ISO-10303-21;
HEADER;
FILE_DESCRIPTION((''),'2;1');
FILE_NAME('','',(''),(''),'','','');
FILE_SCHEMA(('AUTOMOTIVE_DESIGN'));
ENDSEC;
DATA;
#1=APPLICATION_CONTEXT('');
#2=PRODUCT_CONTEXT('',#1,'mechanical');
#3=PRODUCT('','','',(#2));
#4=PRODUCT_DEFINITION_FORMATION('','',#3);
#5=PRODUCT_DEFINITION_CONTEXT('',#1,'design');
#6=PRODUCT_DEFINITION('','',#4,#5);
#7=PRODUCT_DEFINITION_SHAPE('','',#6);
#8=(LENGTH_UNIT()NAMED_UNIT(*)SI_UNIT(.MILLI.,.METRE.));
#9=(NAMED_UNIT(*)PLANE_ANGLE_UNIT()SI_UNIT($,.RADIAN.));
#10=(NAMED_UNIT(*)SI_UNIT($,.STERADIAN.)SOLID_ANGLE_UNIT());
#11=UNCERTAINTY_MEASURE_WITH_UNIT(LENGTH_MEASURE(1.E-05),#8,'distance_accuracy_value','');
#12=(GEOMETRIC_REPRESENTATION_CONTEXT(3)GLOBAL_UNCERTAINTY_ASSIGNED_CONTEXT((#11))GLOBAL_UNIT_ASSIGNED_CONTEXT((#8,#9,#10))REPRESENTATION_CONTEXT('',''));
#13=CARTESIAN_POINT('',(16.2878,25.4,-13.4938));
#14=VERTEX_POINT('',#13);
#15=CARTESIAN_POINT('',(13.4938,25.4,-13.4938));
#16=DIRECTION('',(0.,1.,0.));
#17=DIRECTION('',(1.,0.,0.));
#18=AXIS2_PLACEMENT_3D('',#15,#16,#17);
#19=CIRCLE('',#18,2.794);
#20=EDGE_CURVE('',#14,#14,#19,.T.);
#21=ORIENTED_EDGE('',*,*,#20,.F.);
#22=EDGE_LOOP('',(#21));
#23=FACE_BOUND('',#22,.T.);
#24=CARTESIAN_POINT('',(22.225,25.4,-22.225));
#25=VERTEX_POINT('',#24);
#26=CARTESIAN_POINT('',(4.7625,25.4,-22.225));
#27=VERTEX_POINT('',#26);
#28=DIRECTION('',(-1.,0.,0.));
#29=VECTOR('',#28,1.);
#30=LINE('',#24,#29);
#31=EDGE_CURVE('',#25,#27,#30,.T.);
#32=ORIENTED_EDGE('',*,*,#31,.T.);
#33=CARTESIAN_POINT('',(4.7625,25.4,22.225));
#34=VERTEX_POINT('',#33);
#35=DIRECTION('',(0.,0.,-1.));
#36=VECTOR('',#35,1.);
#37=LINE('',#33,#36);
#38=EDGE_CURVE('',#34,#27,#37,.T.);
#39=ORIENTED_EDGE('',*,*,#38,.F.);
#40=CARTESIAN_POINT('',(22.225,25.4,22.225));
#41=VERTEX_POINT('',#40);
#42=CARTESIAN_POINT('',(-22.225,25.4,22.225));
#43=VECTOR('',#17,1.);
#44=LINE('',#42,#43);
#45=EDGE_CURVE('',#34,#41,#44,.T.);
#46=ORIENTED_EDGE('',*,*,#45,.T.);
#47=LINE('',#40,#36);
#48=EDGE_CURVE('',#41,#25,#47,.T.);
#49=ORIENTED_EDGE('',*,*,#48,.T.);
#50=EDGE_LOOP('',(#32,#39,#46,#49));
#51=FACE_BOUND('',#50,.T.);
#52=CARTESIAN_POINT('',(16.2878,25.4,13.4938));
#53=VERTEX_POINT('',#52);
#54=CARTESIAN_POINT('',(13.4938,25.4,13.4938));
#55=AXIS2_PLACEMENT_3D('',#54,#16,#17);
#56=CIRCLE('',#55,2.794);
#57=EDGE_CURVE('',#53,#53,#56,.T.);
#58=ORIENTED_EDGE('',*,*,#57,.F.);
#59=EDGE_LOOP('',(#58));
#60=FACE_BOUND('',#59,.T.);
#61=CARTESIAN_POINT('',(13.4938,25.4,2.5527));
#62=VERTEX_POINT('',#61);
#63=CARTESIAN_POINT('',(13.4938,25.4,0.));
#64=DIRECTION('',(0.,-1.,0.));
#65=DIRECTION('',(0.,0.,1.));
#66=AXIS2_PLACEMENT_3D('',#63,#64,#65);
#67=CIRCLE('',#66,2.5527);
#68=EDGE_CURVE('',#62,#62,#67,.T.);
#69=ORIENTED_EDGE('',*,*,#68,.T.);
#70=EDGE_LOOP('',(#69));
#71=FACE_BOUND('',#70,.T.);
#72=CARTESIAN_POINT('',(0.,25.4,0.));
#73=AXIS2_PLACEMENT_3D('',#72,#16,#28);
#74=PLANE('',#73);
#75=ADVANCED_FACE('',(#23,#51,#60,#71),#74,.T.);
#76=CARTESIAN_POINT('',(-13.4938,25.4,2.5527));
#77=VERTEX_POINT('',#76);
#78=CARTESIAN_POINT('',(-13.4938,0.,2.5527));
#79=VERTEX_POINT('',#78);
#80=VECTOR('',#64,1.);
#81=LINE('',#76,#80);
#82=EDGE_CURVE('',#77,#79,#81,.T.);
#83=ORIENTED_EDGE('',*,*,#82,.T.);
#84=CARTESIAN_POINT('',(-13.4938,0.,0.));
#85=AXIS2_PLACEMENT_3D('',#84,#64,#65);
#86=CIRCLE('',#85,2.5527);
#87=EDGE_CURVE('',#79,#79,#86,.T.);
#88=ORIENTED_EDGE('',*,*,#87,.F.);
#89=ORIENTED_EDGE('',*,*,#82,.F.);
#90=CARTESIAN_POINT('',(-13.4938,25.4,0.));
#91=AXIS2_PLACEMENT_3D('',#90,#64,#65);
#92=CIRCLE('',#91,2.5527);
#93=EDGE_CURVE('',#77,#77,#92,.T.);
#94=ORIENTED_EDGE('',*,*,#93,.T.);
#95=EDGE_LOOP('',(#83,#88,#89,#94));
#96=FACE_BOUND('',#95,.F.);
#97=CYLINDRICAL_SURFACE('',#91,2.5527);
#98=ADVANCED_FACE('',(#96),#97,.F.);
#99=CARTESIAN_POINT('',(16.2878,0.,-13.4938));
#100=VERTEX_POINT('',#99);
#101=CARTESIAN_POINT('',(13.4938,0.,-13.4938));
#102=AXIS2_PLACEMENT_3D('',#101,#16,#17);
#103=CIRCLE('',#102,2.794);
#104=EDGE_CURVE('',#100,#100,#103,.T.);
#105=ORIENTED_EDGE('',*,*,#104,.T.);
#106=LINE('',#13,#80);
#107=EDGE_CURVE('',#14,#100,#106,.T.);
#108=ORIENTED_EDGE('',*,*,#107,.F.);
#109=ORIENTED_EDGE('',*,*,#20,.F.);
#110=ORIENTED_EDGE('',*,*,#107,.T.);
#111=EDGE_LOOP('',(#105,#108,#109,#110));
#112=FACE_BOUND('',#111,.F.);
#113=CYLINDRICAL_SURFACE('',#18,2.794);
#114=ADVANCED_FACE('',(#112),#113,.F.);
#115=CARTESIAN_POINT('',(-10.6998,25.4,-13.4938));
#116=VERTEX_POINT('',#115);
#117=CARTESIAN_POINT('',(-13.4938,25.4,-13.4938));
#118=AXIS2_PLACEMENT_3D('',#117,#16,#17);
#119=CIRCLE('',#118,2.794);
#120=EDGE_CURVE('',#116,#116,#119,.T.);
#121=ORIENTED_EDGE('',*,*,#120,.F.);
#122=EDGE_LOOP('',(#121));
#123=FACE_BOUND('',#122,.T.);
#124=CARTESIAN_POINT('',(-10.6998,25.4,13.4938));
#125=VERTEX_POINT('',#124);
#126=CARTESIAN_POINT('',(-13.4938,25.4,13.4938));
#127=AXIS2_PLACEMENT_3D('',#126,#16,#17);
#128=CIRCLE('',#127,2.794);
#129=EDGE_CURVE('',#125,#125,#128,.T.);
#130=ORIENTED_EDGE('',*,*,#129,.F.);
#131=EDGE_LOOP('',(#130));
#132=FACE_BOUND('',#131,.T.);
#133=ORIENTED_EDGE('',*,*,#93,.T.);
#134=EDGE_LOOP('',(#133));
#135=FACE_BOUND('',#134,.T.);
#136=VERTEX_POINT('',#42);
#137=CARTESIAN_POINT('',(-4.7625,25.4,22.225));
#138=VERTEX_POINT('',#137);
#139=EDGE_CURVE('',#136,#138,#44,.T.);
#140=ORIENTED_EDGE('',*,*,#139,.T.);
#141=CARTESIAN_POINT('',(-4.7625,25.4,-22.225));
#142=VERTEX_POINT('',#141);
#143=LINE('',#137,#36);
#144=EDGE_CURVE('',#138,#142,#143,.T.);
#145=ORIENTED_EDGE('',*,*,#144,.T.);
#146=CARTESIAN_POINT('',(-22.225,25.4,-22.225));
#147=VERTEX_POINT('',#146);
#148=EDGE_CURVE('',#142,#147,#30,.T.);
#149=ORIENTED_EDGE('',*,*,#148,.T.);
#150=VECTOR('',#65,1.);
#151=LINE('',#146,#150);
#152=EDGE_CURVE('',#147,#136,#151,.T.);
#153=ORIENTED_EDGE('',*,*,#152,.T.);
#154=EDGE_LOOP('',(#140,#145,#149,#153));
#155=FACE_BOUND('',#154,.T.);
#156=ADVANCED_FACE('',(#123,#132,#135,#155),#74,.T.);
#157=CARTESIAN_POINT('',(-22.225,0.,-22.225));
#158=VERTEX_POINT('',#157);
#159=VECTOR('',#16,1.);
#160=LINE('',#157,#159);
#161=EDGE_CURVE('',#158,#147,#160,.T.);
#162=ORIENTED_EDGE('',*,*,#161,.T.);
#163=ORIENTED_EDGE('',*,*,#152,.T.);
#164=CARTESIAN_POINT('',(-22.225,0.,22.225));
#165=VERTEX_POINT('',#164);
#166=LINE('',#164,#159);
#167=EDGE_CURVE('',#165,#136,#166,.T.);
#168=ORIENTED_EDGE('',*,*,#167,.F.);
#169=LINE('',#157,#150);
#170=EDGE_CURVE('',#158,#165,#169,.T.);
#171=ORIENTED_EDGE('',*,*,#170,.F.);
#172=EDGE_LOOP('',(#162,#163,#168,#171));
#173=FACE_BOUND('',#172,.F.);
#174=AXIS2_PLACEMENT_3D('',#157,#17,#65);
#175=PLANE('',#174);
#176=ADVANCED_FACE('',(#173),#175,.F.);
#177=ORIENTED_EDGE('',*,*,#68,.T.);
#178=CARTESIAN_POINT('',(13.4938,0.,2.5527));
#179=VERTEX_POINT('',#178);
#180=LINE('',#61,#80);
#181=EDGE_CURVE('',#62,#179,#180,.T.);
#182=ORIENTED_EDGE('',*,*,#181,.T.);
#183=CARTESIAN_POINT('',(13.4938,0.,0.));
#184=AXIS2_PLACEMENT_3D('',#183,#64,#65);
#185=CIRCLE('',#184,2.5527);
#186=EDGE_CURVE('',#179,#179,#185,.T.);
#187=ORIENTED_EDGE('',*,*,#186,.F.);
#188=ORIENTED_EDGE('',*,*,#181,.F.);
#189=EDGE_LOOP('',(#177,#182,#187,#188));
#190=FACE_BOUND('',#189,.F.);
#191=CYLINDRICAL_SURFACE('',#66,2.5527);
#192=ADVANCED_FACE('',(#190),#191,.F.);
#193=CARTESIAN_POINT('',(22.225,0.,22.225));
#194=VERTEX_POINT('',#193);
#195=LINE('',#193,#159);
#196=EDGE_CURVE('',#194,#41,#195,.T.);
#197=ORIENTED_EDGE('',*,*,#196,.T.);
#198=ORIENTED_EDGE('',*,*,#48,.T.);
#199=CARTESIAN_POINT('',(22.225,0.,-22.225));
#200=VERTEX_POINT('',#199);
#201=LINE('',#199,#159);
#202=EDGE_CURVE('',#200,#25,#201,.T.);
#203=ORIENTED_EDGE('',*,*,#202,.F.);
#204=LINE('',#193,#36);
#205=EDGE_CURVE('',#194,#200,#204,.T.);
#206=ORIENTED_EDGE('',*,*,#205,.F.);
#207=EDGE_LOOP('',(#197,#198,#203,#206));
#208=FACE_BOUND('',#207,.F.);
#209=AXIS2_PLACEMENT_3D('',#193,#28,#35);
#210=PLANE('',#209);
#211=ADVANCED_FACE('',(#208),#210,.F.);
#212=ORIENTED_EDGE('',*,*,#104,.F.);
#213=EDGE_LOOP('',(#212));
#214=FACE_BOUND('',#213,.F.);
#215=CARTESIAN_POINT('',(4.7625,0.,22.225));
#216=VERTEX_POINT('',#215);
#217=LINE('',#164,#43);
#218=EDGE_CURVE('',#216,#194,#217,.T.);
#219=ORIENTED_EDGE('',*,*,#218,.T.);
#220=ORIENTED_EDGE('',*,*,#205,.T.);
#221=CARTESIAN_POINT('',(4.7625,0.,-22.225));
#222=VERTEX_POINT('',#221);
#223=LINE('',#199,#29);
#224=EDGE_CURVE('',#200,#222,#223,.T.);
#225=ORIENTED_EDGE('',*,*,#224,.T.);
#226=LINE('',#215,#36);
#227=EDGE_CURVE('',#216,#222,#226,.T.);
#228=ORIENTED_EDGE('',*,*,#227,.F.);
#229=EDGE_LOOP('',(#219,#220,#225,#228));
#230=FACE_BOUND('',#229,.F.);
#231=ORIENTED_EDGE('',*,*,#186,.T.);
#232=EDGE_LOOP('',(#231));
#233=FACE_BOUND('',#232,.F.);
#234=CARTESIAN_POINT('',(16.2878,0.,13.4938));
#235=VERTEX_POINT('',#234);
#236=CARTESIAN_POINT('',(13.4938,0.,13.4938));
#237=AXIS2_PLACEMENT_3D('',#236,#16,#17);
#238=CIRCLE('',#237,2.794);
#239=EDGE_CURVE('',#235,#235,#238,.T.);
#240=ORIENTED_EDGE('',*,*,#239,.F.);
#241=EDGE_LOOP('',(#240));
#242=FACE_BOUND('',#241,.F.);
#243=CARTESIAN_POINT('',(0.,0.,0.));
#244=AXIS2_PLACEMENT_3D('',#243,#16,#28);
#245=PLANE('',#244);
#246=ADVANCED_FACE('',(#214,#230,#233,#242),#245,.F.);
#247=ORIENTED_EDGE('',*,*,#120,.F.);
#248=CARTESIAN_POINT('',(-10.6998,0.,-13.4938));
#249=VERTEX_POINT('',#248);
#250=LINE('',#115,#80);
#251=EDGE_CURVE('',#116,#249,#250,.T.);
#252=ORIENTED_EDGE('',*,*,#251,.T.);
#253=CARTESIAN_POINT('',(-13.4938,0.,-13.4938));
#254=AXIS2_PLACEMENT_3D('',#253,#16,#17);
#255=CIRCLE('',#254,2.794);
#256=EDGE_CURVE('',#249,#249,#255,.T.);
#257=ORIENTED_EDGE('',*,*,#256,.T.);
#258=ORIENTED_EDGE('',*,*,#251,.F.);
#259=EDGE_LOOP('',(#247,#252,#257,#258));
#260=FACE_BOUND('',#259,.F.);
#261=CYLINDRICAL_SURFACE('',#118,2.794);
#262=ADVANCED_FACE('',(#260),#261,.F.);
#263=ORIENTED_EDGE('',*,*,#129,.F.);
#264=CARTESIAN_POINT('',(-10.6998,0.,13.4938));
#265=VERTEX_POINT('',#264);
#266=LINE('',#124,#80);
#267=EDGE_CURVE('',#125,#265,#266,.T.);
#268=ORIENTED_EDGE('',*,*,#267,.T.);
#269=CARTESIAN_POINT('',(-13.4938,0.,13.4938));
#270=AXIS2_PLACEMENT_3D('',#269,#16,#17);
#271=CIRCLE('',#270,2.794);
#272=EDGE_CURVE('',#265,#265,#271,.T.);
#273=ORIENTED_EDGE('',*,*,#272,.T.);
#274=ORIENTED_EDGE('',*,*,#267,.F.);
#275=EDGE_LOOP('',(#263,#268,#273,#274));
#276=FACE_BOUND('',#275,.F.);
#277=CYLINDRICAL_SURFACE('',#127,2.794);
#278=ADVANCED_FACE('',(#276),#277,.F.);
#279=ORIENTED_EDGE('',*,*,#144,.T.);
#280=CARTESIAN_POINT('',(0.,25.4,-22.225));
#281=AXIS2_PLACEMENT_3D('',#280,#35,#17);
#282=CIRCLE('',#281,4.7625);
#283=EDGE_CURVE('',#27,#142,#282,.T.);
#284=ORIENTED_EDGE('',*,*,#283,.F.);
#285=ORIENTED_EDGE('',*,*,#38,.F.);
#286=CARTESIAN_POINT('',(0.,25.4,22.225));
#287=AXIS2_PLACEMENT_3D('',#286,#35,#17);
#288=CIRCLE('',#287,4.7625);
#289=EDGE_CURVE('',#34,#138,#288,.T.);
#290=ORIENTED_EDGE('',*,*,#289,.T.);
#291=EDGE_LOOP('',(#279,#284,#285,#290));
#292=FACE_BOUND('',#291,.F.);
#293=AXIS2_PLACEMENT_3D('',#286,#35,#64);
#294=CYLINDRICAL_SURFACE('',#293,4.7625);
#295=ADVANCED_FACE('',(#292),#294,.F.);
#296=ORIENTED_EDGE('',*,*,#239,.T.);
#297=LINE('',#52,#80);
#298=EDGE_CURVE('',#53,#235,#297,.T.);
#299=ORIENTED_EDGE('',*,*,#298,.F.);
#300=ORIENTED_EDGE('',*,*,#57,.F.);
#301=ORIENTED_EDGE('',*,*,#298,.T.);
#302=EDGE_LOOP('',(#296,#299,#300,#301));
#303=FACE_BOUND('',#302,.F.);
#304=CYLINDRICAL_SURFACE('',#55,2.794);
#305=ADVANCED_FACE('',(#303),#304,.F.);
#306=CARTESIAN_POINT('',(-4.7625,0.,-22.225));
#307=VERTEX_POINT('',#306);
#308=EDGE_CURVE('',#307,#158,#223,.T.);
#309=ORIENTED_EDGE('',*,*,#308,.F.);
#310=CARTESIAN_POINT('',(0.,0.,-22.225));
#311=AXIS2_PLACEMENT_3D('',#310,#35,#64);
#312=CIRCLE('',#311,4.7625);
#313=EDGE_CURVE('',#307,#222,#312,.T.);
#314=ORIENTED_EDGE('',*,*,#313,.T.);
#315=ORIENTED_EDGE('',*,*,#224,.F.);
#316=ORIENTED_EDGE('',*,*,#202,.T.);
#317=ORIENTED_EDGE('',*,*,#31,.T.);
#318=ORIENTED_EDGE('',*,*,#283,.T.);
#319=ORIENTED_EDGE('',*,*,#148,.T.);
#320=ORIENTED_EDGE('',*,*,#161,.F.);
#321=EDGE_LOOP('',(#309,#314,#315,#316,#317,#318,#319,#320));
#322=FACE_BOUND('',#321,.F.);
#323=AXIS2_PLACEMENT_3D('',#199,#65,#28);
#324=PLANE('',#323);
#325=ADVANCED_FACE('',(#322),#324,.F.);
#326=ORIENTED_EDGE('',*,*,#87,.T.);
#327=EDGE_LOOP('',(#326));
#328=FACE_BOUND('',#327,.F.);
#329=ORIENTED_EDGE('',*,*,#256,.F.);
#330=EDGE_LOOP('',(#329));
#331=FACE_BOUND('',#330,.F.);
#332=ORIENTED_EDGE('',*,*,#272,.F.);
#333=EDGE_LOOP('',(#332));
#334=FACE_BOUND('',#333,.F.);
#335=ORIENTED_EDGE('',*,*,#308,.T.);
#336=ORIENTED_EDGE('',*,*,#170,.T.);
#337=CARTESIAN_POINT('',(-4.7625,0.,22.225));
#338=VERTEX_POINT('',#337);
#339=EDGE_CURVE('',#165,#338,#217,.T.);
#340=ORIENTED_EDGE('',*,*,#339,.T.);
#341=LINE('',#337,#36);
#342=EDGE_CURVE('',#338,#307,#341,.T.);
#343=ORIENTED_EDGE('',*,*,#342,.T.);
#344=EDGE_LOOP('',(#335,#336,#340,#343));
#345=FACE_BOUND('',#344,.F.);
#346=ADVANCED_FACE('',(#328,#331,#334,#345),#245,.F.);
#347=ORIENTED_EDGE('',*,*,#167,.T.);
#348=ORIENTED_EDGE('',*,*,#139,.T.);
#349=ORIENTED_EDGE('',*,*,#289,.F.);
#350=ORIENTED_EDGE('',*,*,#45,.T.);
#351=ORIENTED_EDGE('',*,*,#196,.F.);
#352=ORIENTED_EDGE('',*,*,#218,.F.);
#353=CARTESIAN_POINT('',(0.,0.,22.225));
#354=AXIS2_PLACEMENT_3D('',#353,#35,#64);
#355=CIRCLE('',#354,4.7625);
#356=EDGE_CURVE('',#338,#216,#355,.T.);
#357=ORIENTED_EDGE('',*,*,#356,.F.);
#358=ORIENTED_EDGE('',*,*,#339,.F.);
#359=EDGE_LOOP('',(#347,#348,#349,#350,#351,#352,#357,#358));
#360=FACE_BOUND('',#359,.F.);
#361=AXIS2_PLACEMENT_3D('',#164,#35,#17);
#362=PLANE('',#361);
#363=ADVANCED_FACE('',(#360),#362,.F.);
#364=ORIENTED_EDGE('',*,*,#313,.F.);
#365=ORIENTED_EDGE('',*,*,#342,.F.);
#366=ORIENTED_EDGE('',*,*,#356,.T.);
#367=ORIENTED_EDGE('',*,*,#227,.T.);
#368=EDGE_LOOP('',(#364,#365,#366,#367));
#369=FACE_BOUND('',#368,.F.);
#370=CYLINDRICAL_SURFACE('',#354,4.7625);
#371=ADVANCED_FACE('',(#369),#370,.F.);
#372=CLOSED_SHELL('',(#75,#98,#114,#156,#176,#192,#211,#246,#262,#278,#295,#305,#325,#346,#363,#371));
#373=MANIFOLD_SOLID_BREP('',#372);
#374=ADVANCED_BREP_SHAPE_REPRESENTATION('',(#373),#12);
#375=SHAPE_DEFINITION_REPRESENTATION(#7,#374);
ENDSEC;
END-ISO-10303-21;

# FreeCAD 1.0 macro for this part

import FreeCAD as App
import Part
import Sketcher

V = App.Vector
Q = App.Units.Quantity

doc = App.newDocument("Part")
body = doc.addObject("PartDesign::Body", "Body")

# Sketch on XZ plane
sketch1 = doc.addObject("Sketcher::SketchObject", "Sketch")
body.addObject(sketch1)
sketch1.AttachmentSupport = (doc.XZ_Plane, [""])
sketch1.MapMode = "FlatFace"
sketch1.addGeometry([
    Part.LineSegment(V(-22, 22, 0), V(22, 22, 0)),
    Part.LineSegment(V(22, 22, 0), V(22, -22, 0)),
    Part.LineSegment(V(22, -22, 0), V(-22, -22, 0)),
    Part.LineSegment(V(-22, -22, 0), V(-22, 22, 0)),
], False)
sketch1.addConstraint([
    Sketcher.Constraint("Coincident", 0, 2, 1, 1),
    Sketcher.Constraint("Coincident", 1, 2, 2, 1),
    Sketcher.Constraint("Coincident", 2, 2, 3, 1),
    Sketcher.Constraint("Coincident", 3, 2, 0, 1),
    Sketcher.Constraint("Horizontal", 0),
    Sketcher.Constraint("Vertical", 1),
    Sketcher.Constraint("Horizontal", 2),
    Sketcher.Constraint("Vertical", 3),
    Sketcher.Constraint("Symmetric", 0, 2, 2, 2, -1, 1),
    Sketcher.Constraint("Equal", 2, 1),
    Sketcher.Constraint("DistanceX", 0, 1, 0, 2, Q("1.75 in")),
])
pad1 = doc.addObject("PartDesign::Pad", "Pad")
body.addObject(pad1)
pad1.Profile = sketch1
pad1.Length = Q("1 in")
pad1.Reversed = True

# Sketch on XY plane
sketch2 = doc.addObject("Sketcher::SketchObject", "Sketch001")
body.addObject(sketch2)
sketch2.AttachmentSupport = (doc.XY_Plane, [""])
sketch2.MapMode = "FlatFace"
sketch2.AttachmentOffset = App.Placement(V(0, 0, 0.875 * 25.4), App.Rotation())
sketch2.addGeometry([
    Part.Circle(V(0, 25.4, 0), V(0, 0, 1), 4.8),
    Part.Circle(V(0, 0, 0), V(0, 0, 1), 4.8),
], False)
sketch2.addConstraint([
    Sketcher.Constraint("Coincident", 1, 3, -1, 1),
    Sketcher.Constraint("Equal", 0, 1),
    Sketcher.Constraint("PointOnObject", 0, 3, -2),
    Sketcher.Constraint("Diameter", 0, Q("0.375 in")),
    Sketcher.Constraint("DistanceY", -1, 1, 0, 3, Q("1 in")),
])
doc.recompute()
hole = doc.addObject("PartDesign::Hole", "Hole")
body.addObject(hole)
hole.Profile = sketch2
hole.ThreadType = "None"
hole.Diameter = Q("0.375 in")
hole.DepthType = "ThroughAll"

# Sketch on XZ plane
sketch3 = doc.addObject("Sketcher::SketchObject", "Sketch002")
body.addObject(sketch3)
sketch3.AttachmentSupport = (doc.XZ_Plane, [""])
sketch3.MapMode = "FlatFace"
sketch3.AttachmentOffset = App.Placement(V(0, 0, -1 * 25.4), App.Rotation())
sketch3.addGeometry([
    Part.Circle(V(-13.5, 0, 0), V(0, 0, 1), 2.6),
    Part.Circle(V(13.5, 0, 0), V(0, 0, 1), 2.6),
], False)
sketch3.addConstraint([
    Sketcher.Constraint("Equal", 0, 1),
    Sketcher.Constraint("Symmetric", 0, 3, 1, 3, -1, 1),
    Sketcher.Constraint("PointOnObject", 0, 3, -1),
    Sketcher.Constraint("Diameter", 0, Q("0.201 in")),
    Sketcher.Constraint("DistanceX", 0, 3, -1, 1, Q("0.531252 in")),
])
doc.recompute()
hole2 = doc.addObject("PartDesign::Hole", "Hole001")
body.addObject(hole2)
hole2.Profile = sketch3
hole2.ThreadType = "None"
hole2.Diameter = Q("0.201 in")
hole2.DepthType = "ThroughAll"
hole2.Reversed = True

# Sketch on XZ plane
sketch4 = doc.addObject("Sketcher::SketchObject", "Sketch003")
body.addObject(sketch4)
sketch4.AttachmentSupport = (doc.XZ_Plane, [""])
sketch4.MapMode = "FlatFace"
sketch4.AttachmentOffset = App.Placement(V(0, 0, -1 * 25.4), App.Rotation())
sketch4.addGeometry([
    Part.Circle(V(-13.5, 13.5, 0), V(0, 0, 1), 2.8),
    Part.Circle(V(13.5, 13.5, 0), V(0, 0, 1), 2.8),
    Part.Circle(V(13.5, -13.5, 0), V(0, 0, 1), 2.8),
    Part.Circle(V(-13.5, -13.5, 0), V(0, 0, 1), 2.8),
], False)
sketch4.addConstraint([
    Sketcher.Constraint("Equal", 0, 1),
    Sketcher.Constraint("Equal", 1, 2),
    Sketcher.Constraint("Equal", 2, 3),
    Sketcher.Constraint("Symmetric", 0, 3, 2, 3, -1, 1),
    Sketcher.Constraint("Symmetric", 1, 3, 3, 3, -1, 1),
    Sketcher.Constraint("Symmetric", 0, 3, 1, 3, -2),
    Sketcher.Constraint("Diameter", 0, Q("0.22 in")),
    Sketcher.Constraint("DistanceX", 0, 3, -1, 1, Q("0.531252 in")),
    Sketcher.Constraint("DistanceY", -1, 1, 0, 3, Q("0.531252 in")),
])
pocket1 = doc.addObject("PartDesign::Pocket", "Pocket")
body.addObject(pocket1)
pocket1.Profile = sketch4
pocket1.Type = "ThroughAll"
pocket1.Reversed = True

doc.recompute()
